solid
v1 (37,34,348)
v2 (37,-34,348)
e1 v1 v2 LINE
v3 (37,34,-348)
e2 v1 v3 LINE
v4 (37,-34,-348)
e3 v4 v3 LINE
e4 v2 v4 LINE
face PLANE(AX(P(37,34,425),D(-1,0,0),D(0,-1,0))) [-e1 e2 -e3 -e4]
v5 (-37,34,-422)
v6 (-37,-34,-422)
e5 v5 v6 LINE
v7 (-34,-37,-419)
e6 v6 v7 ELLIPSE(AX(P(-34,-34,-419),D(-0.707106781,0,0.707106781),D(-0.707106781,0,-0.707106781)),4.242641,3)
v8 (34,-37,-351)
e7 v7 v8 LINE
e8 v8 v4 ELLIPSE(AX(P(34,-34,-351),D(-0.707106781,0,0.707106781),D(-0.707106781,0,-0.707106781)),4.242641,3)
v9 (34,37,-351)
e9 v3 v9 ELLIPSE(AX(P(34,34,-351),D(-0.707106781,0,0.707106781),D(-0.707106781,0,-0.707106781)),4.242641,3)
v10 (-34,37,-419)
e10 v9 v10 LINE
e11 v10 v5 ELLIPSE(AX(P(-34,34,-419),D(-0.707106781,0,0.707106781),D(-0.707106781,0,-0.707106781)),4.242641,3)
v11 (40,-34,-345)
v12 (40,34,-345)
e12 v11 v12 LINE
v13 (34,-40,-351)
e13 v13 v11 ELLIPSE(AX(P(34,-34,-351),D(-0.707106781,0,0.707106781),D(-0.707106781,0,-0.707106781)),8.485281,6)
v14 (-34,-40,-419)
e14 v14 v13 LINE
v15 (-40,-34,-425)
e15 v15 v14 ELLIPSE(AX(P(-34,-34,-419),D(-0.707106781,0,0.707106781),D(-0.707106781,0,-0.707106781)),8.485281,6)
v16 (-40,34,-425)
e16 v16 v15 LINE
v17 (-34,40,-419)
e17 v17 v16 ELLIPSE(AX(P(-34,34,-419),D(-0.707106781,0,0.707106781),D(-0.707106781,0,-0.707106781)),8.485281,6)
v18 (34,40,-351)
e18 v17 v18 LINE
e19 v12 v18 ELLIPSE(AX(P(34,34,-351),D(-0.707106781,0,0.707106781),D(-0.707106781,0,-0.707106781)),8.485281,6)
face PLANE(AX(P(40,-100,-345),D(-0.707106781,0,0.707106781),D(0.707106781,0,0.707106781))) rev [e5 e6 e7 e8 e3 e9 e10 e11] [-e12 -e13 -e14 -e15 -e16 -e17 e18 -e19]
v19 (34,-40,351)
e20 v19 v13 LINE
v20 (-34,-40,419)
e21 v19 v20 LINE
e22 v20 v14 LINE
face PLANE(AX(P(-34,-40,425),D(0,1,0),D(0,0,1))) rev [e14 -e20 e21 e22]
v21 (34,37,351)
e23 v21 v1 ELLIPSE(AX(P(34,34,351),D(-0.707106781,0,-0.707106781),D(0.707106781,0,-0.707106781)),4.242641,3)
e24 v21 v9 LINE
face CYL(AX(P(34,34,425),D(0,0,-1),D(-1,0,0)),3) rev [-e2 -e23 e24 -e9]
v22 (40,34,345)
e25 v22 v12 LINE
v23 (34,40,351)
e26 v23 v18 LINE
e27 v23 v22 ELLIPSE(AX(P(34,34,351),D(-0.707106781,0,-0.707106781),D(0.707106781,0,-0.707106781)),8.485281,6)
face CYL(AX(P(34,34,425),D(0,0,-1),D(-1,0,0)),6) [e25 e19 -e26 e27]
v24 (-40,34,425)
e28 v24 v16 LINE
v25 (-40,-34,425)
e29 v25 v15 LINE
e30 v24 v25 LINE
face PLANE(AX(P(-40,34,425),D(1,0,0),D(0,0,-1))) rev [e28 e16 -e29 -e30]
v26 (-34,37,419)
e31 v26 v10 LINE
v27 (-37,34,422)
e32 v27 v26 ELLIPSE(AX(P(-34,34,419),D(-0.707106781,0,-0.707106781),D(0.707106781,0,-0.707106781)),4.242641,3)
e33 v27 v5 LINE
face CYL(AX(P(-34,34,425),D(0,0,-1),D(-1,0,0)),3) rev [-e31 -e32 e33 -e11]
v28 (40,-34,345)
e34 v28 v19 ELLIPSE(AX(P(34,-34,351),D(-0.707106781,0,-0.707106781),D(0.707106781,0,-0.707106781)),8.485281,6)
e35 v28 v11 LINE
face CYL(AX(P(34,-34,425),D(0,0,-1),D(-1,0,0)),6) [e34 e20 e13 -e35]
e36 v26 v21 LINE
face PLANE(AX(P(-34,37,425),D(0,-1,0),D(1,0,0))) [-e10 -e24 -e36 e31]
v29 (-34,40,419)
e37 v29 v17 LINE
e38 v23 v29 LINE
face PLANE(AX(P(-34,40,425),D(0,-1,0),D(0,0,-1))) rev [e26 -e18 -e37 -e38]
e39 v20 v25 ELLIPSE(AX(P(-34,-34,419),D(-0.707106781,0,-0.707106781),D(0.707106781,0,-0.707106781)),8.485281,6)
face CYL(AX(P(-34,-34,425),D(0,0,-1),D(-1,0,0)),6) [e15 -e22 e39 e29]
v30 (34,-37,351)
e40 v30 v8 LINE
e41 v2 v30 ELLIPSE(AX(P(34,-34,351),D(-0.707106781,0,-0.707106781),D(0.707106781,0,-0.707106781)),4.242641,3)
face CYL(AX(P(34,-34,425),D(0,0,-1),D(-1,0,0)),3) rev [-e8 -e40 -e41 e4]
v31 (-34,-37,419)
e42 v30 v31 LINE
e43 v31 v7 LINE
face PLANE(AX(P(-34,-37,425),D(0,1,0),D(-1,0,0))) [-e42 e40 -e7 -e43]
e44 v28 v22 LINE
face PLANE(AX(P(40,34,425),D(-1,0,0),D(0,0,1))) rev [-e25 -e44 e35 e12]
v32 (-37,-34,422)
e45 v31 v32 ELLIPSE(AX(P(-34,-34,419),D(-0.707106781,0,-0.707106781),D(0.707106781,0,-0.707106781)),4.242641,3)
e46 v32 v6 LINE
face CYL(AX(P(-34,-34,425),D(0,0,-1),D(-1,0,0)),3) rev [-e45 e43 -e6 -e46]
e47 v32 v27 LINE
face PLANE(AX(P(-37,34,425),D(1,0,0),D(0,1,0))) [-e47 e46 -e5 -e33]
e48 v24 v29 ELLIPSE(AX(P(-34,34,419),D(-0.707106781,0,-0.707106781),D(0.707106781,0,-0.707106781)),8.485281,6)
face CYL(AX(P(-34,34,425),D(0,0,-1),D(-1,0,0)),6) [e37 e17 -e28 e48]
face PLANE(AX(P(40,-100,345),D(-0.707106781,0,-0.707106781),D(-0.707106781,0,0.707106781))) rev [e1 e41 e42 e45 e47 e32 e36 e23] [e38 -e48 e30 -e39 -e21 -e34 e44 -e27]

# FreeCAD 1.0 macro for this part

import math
import FreeCAD as App
import Part
import Sketcher

doc = App.newDocument("Part")
body = doc.addObject("PartDesign::Body", "Body")

# Sketch on XY plane
sketch1 = body.newObject("Sketcher::SketchObject", "Sketch")
sketch1.AttachmentSupport = (doc.getObject("XY_Plane"), [""])
sketch1.MapMode = "FlatFace"
sketch1.addGeometry(Part.LineSegment(App.Vector(34, 40, 0), App.Vector(-34, 40, 0)), False)
sketch1.addGeometry(Part.ArcOfCircle(Part.Circle(App.Vector(-34, 34, 0), App.Vector(0, 0, 1), 6), math.radians(90), math.radians(180)), False)
sketch1.addGeometry(Part.LineSegment(App.Vector(-40, 34, 0), App.Vector(-40, -34, 0)), False)
sketch1.addGeometry(Part.ArcOfCircle(Part.Circle(App.Vector(-34, -34, 0), App.Vector(0, 0, 1), 6), math.radians(180), math.radians(270)), False)
sketch1.addGeometry(Part.LineSegment(App.Vector(-34, -40, 0), App.Vector(34, -40, 0)), False)
sketch1.addGeometry(Part.ArcOfCircle(Part.Circle(App.Vector(34, -34, 0), App.Vector(0, 0, 1), 6), math.radians(-90), math.radians(0)), False)
sketch1.addGeometry(Part.LineSegment(App.Vector(40, -34, 0), App.Vector(40, 34, 0)), False)
sketch1.addGeometry(Part.ArcOfCircle(Part.Circle(App.Vector(34, 34, 0), App.Vector(0, 0, 1), 6), math.radians(0), math.radians(90)), False)
sketch1.addGeometry(Part.ArcOfCircle(Part.Circle(App.Vector(-34, 34, 0), App.Vector(0, 0, 1), 3), math.radians(90), math.radians(180)), False)
sketch1.addGeometry(Part.LineSegment(App.Vector(-34, 37, 0), App.Vector(34, 37, 0)), False)
sketch1.addGeometry(Part.ArcOfCircle(Part.Circle(App.Vector(34, 34, 0), App.Vector(0, 0, 1), 3), math.radians(0), math.radians(90)), False)
sketch1.addGeometry(Part.LineSegment(App.Vector(37, 34, 0), App.Vector(37, -34, 0)), False)
sketch1.addGeometry(Part.ArcOfCircle(Part.Circle(App.Vector(34, -34, 0), App.Vector(0, 0, 1), 3), math.radians(-90), math.radians(0)), False)
sketch1.addGeometry(Part.LineSegment(App.Vector(34, -37, 0), App.Vector(-34, -37, 0)), False)
sketch1.addGeometry(Part.ArcOfCircle(Part.Circle(App.Vector(-34, -34, 0), App.Vector(0, 0, 1), 3), math.radians(180), math.radians(270)), False)
sketch1.addGeometry(Part.LineSegment(App.Vector(-37, -34, 0), App.Vector(-37, 34, 0)), False)
sketch1.addConstraint(Sketcher.Constraint("Tangent", 0, 2, 1, 1))
sketch1.addConstraint(Sketcher.Constraint("Tangent", 1, 2, 2, 1))
sketch1.addConstraint(Sketcher.Constraint("Tangent", 2, 2, 3, 1))
sketch1.addConstraint(Sketcher.Constraint("Tangent", 3, 2, 4, 1))
sketch1.addConstraint(Sketcher.Constraint("Tangent", 4, 2, 5, 1))
sketch1.addConstraint(Sketcher.Constraint("Tangent", 5, 2, 6, 1))
sketch1.addConstraint(Sketcher.Constraint("Tangent", 6, 2, 7, 1))
sketch1.addConstraint(Sketcher.Constraint("Tangent", 7, 2, 0, 1))
sketch1.addConstraint(Sketcher.Constraint("Tangent", 8, 1, 9, 1))
sketch1.addConstraint(Sketcher.Constraint("Tangent", 9, 2, 10, 2))
sketch1.addConstraint(Sketcher.Constraint("Tangent", 10, 1, 11, 1))
sketch1.addConstraint(Sketcher.Constraint("Tangent", 11, 2, 12, 2))
sketch1.addConstraint(Sketcher.Constraint("Tangent", 12, 1, 13, 1))
sketch1.addConstraint(Sketcher.Constraint("Tangent", 13, 2, 14, 2))
sketch1.addConstraint(Sketcher.Constraint("Tangent", 14, 1, 15, 1))
sketch1.addConstraint(Sketcher.Constraint("Tangent", 15, 2, 8, 2))
sketch1.addConstraint(Sketcher.Constraint("Horizontal", 0))
sketch1.addConstraint(Sketcher.Constraint("Vertical", 2))
sketch1.addConstraint(Sketcher.Constraint("Horizontal", 4))
sketch1.addConstraint(Sketcher.Constraint("Vertical", 6))
sketch1.addConstraint(Sketcher.Constraint("Horizontal", 9))
sketch1.addConstraint(Sketcher.Constraint("Vertical", 11))
sketch1.addConstraint(Sketcher.Constraint("Horizontal", 13))
sketch1.addConstraint(Sketcher.Constraint("Vertical", 15))
sketch1.addConstraint(Sketcher.Constraint("Coincident", 8, 3, 1, 3))
sketch1.addConstraint(Sketcher.Constraint("Coincident", 10, 3, 7, 3))
sketch1.addConstraint(Sketcher.Constraint("Coincident", 12, 3, 5, 3))
sketch1.addConstraint(Sketcher.Constraint("Equal", 1, 3))
sketch1.addConstraint(Sketcher.Constraint("Equal", 3, 5))
sketch1.addConstraint(Sketcher.Constraint("Equal", 5, 7))
sketch1.addConstraint(Sketcher.Constraint("Equal", 12, 14))
sketch1.addConstraint(Sketcher.Constraint("Symmetric", 1, 3, 5, 3, -1, 1))
sketch1.addConstraint(Sketcher.Constraint("Equal", 13, 2))
sketch1.addConstraint(Sketcher.Constraint("Radius", 1, 6.0))
sketch1.addConstraint(Sketcher.Constraint("Radius", 8, 3.0))
sketch1.addConstraint(Sketcher.Constraint("DistanceX", 0, 2, 0, 1, 68.0))
pad1 = body.newObject("PartDesign::Pad", "Pad")
pad1.Profile = sketch1
pad1.Length = 850
pad1.Midplane = True

# Sketch on XZ plane
sketch2 = body.newObject("Sketcher::SketchObject", "Sketch001")
sketch2.AttachmentSupport = (doc.getObject("XZ_Plane"), [""])
sketch2.MapMode = "FlatFace"
sketch2.AttachmentOffset = App.Placement(App.Vector(0, 0, -40), App.Rotation())
sketch2.addGeometry(Part.LineSegment(App.Vector(40, -425, 0), App.Vector(-40, -425, 0)), False)
sketch2.addGeometry(Part.LineSegment(App.Vector(-40, -425, 0), App.Vector(40, -345, 0)), False)
sketch2.addGeometry(Part.LineSegment(App.Vector(40, -345, 0), App.Vector(40, -425, 0)), False)
sketch2.addGeometry(Part.LineSegment(App.Vector(40, 345, 0), App.Vector(-40, 425, 0)), False)
sketch2.addGeometry(Part.LineSegment(App.Vector(-40, 425, 0), App.Vector(40, 425, 0)), False)
sketch2.addGeometry(Part.LineSegment(App.Vector(40, 425, 0), App.Vector(40, 345, 0)), False)
sketch2.addConstraint(Sketcher.Constraint("Coincident", 0, 2, 1, 1))
sketch2.addConstraint(Sketcher.Constraint("Coincident", 1, 2, 2, 1))
sketch2.addConstraint(Sketcher.Constraint("Coincident", 2, 2, 0, 1))
sketch2.addConstraint(Sketcher.Constraint("Coincident", 3, 2, 4, 1))
sketch2.addConstraint(Sketcher.Constraint("Coincident", 4, 2, 5, 1))
sketch2.addConstraint(Sketcher.Constraint("Coincident", 5, 2, 3, 1))
sketch2.addConstraint(Sketcher.Constraint("Horizontal", 0))
sketch2.addConstraint(Sketcher.Constraint("Vertical", 2))
sketch2.addConstraint(Sketcher.Constraint("Horizontal", 4))
sketch2.addConstraint(Sketcher.Constraint("Vertical", 5))
sketch2.addConstraint(Sketcher.Constraint("Symmetric", 2, 2, 3, 2, -1, 1))
sketch2.addConstraint(Sketcher.Constraint("Symmetric", 1, 2, 5, 2, -1))
sketch2.addConstraint(Sketcher.Constraint("Perpendicular", 1, 3))
sketch2.addConstraint(Sketcher.Constraint("Vertical", 0, 2, 3, 2))
sketch2.addConstraint(Sketcher.Constraint("DistanceX", 0, 2, 0, 1, 80.0))
sketch2.addConstraint(Sketcher.Constraint("DistanceY", 0, 2, -1, 1, 425.0))
pocket1 = body.newObject("PartDesign::Pocket", "Pocket")
pocket1.Profile = sketch2
pocket1.Length = 140
pocket1.Reversed = True

doc.recompute()
